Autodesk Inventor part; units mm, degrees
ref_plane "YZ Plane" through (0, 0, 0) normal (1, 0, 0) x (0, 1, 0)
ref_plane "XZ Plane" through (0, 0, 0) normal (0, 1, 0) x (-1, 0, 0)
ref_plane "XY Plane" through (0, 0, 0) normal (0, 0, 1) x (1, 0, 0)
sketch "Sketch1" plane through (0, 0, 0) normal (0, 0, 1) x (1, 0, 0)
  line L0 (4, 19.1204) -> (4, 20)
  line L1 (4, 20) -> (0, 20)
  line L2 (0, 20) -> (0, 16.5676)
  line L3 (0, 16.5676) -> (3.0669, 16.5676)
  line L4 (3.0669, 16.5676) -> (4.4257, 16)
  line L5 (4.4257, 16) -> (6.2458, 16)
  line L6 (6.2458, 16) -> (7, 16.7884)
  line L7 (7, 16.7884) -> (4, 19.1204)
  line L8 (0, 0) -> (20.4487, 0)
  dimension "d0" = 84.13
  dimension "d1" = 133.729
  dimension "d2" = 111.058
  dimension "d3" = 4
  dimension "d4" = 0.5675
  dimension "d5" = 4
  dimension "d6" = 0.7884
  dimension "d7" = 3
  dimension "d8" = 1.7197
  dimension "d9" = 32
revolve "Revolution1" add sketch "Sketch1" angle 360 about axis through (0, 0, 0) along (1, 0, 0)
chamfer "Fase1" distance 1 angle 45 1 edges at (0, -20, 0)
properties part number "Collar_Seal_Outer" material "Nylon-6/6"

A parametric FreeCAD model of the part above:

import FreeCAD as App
import Part
import Sketcher
Q = App.Units.Quantity


def edges_at(feature, points):
    """Names of the edges that pass closest to the given points."""
    edges = feature.Shape.Edges
    near = lambda p: min(range(len(edges)), key=lambda i: edges[i].distToShape(Part.Vertex(*p))[0])
    return sorted({f"Edge{near(p) + 1}" for p in points})


def add_polygon(sketch, points):
    """Adds a closed chain of lines whose ends are joined by coincident constraints."""
    first, n = sketch.GeometryCount, len(points)
    for a, b in zip(points, points[1:] + points[:1]):
        sketch.addGeometry(Part.LineSegment(App.Vector(*a, 0), App.Vector(*b, 0)), False)
    for i in range(n):
        sketch.addConstraint(Sketcher.Constraint("Coincident", first + i, 2, first + (i + 1) % n, 1))

doc = App.newDocument("Part")
body = doc.addObject("PartDesign::Body", "Body")

# Sketch on XY plane
sketch1 = body.newObject("Sketcher::SketchObject", "Sketch")
sketch1.AttachmentSupport = (doc.getObject("XY_Plane"), [""])
sketch1.MapMode = "FlatFace"
add_polygon(sketch1, [(7, 16.8), (4, 19.1), (4, 20), (0, 20), (0, 16.6), (3.1, 16.6), (4.4, 16), (6.2, 16)])  # lines 0-7
sketch1.addConstraint([
    Sketcher.Constraint("Vertical", 1),
    Sketcher.Constraint("Horizontal", 2),
    Sketcher.Constraint("Vertical", 3),
    Sketcher.Constraint("Horizontal", 4),
    Sketcher.Constraint("Horizontal", 6),
    Sketcher.Constraint("PointOnObject", 2, 2, -2),
    Sketcher.Constraint("DistanceX", 2, 2, 2, 1, 4.0),
    Sketcher.Constraint("DistanceY", 5, 2, 1, 2, 4.0),
    Sketcher.Constraint("DistanceX", 0, 2, 7, 2, 3.0),
    Sketcher.Constraint("DistanceY", -1, 1, 1, 2, 20.0),
    Sketcher.Constraint("DistanceX", 6, 1, 6, 2, 1.82),
    Sketcher.Constraint("Angle", 0, Q("142.141 deg")),
    Sketcher.Constraint("Angle", 7, Q("46.27 deg")),
    Sketcher.Constraint("DistanceY", 5, 2, 4, 2, 0.5676),
    Sketcher.Constraint("DistanceY", 6, 2, 7, 2, 0.7884),
    Sketcher.Constraint("DistanceX", 4, 1, 4, 2, 3.067),
])
revolution = body.newObject("PartDesign::Revolution", "Revolution")
revolution.Profile = sketch1
revolution.ReferenceAxis = (sketch1, ["H_Axis"])
revolution.Angle = 360
doc.recompute()

chamfer = body.newObject("PartDesign::Chamfer", "Chamfer")
chamfer.Base = (revolution, edges_at(revolution, [(0, -20, 0)]))
chamfer.Size = 1

doc.recompute()
